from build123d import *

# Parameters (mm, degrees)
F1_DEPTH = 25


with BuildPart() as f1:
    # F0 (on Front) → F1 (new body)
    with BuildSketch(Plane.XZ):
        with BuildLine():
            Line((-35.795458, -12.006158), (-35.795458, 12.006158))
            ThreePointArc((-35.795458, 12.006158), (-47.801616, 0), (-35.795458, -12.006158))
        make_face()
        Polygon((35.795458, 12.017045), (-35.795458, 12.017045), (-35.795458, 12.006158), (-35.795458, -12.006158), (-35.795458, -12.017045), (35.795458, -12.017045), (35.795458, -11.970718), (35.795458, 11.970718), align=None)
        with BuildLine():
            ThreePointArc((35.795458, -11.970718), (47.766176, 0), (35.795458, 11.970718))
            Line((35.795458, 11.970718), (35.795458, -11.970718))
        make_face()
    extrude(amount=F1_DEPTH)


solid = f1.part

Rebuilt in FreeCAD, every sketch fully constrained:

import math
import FreeCAD as App
import Part
import Sketcher

V = App.Vector

doc = App.newDocument("Part")
body = doc.addObject("PartDesign::Body", "Body")

sketch1 = body.newObject("Sketcher::SketchObject", "Sketch")
sketch1.AttachmentSupport = (doc.getObject("XZ_Plane"), [""])
sketch1.MapMode = "FlatFace"
sketch1.addGeometry([
    Part.ArcOfCircle(Part.Circle(V(-35.795, 0, 0), V(0, 0, 1), 12.006), math.radians(90), math.radians(270)),
    Part.LineSegment(V(-35.795, -12.006, 0), V(-35.795, -12.017, 0)),
    Part.LineSegment(V(-35.795, -12.017, 0), V(35.795, -12.017, 0)),
    Part.LineSegment(V(35.795, -12.017, 0), V(35.795, -11.971, 0)),
    Part.ArcOfCircle(Part.Circle(V(35.795, 0, 0), V(0, 0, 1), 11.971), math.radians(-90), math.radians(90)),
    Part.LineSegment(V(35.795, 11.971, 0), V(35.795, 12.017, 0)),
    Part.LineSegment(V(35.795, 12.017, 0), V(-35.795, 12.017, 0)),
    Part.LineSegment(V(-35.795, 12.017, 0), V(-35.795, 12.006, 0)),
], False)
sketch1.addConstraint([
    Sketcher.Constraint("Coincident", 0, 2, 1, 1),
    Sketcher.Constraint("Coincident", 1, 2, 2, 1),
    Sketcher.Constraint("Coincident", 2, 2, 3, 1),
    Sketcher.Constraint("Coincident", 3, 2, 4, 1),
    Sketcher.Constraint("Coincident", 4, 2, 5, 1),
    Sketcher.Constraint("Coincident", 5, 2, 6, 1),
    Sketcher.Constraint("Coincident", 6, 2, 7, 1),
    Sketcher.Constraint("Coincident", 7, 2, 0, 1),
    Sketcher.Constraint("Vertical", 1),
    Sketcher.Constraint("Horizontal", 2),
    Sketcher.Constraint("Vertical", 3),
    Sketcher.Constraint("Vertical", 5),
    Sketcher.Constraint("Horizontal", 6),
    Sketcher.Constraint("Vertical", 7),
    Sketcher.Constraint("Symmetric", 0, 3, 4, 3, -1, 1),
    Sketcher.Constraint("Symmetric", 1, 2, 5, 2, -1, 1),
    Sketcher.Constraint("Symmetric", 3, 2, 4, 2, -1),
    Sketcher.Constraint("Vertical", 4, 3, 2, 2),
    Sketcher.Constraint("Vertical", 1, 2, 6, 2),
    Sketcher.Constraint("Radius", 0, 12.006158),
    Sketcher.Constraint("Radius", 4, 11.970718),
    Sketcher.Constraint("DistanceX", 2, 1, 2, 2, 71.590916),
    Sketcher.Constraint("DistanceY", 1, 2, 1, 1, 0.010887),
])
pad1 = body.newObject("PartDesign::Pad", "Pad")
pad1.Profile = sketch1
pad1.Length = 25

doc.recompute()
